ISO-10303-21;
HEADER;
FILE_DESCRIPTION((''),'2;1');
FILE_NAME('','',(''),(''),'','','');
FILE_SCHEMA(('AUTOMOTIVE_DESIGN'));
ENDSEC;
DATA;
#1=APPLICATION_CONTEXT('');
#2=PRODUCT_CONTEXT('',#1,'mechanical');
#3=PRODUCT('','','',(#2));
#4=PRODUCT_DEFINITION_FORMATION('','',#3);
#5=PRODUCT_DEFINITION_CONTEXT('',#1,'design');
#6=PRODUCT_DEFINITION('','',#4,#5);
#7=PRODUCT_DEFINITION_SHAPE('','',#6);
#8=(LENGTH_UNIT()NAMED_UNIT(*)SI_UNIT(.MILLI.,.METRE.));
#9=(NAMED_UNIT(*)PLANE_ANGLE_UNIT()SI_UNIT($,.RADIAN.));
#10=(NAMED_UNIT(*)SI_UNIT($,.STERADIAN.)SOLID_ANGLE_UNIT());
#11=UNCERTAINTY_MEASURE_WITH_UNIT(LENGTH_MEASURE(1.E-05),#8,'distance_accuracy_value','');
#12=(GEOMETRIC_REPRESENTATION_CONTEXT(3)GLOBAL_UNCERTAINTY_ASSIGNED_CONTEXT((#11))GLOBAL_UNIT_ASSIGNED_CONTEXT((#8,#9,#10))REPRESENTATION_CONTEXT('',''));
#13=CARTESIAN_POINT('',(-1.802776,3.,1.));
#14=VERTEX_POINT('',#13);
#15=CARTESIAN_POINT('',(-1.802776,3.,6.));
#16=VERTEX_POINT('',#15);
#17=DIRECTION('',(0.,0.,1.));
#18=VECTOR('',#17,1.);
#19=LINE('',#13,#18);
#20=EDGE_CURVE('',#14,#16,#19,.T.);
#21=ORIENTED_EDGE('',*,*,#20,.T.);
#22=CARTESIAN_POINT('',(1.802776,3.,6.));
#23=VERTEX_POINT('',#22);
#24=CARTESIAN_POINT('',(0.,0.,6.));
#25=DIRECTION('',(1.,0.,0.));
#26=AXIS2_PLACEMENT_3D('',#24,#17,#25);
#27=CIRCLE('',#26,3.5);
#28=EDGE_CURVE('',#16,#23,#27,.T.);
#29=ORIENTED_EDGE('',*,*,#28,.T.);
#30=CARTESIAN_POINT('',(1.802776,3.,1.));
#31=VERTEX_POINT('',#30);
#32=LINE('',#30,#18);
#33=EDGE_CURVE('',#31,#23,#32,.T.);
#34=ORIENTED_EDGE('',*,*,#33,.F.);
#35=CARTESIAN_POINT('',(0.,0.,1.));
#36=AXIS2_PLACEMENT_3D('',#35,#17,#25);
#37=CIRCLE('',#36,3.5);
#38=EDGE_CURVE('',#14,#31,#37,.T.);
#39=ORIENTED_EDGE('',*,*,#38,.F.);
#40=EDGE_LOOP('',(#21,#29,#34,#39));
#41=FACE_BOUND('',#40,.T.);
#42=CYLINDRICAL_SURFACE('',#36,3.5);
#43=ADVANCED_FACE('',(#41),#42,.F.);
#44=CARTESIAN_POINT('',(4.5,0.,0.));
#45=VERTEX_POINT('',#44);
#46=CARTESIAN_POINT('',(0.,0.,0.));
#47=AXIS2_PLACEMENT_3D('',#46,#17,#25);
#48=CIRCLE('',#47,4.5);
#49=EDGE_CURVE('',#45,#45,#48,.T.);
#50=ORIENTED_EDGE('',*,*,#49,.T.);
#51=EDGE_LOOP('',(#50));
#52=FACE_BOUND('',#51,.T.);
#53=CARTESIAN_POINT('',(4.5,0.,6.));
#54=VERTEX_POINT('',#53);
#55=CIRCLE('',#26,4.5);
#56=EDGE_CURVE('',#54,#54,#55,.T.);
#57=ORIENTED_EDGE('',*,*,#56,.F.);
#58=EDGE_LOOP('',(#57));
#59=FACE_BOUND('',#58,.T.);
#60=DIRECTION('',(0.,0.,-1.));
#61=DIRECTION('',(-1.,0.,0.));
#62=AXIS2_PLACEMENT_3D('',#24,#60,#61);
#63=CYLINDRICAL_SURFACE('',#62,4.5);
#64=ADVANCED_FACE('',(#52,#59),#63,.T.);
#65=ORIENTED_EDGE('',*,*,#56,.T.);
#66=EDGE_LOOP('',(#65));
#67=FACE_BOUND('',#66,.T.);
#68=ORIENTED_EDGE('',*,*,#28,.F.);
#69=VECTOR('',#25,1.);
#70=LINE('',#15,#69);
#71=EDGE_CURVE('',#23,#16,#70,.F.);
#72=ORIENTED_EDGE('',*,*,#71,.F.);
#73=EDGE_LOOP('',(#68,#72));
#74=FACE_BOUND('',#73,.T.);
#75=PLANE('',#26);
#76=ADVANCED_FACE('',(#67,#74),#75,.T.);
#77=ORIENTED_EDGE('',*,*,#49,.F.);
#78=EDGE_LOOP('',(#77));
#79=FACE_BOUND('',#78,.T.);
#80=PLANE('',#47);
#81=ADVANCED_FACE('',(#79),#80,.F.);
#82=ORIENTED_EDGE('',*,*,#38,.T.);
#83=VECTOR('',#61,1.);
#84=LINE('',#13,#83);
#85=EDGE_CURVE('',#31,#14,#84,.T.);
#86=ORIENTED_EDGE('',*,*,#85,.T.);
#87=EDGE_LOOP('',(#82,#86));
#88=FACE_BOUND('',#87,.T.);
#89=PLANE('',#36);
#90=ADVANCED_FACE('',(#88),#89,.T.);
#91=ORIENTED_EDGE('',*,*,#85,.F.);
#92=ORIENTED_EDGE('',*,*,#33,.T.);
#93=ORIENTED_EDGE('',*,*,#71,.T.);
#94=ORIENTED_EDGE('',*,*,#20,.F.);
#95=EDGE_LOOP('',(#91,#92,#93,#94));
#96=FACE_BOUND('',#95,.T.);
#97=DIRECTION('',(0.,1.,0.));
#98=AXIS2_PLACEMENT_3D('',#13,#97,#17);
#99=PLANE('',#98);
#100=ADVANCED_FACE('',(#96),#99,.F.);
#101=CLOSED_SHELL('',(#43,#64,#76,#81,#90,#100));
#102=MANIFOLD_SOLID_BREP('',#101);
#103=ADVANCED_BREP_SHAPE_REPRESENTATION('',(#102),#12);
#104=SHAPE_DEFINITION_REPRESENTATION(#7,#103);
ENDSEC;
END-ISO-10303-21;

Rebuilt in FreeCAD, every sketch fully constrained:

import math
import FreeCAD as App
import Part
import Sketcher

V = App.Vector
Q = App.Units.Quantity

doc = App.newDocument("Part")
body = doc.addObject("PartDesign::Body", "Body")

# Sketch on XY plane
sketch1 = body.newObject("Sketcher::SketchObject", "Sketch")
sketch1.AttachmentSupport = (doc.getObject("XY_Plane"), [""])
sketch1.MapMode = "FlatFace"
sketch1.addGeometry(Part.Circle(V(0, 0, 0), V(0, 0, 1), 4.5), False)
sketch1.addConstraint([
    Sketcher.Constraint("Coincident", 0, 3, -1, 1),
    Sketcher.Constraint("Diameter", 0, Q("9 mm")),
])
pad1 = body.newObject("PartDesign::Pad", "Pad")
pad1.Profile = sketch1
pad1.Length = 6

# Sketch on XY plane
sketch2 = body.newObject("Sketcher::SketchObject", "Sketch001")
sketch2.AttachmentSupport = (doc.getObject("XY_Plane"), [""])
sketch2.MapMode = "FlatFace"
sketch2.AttachmentOffset = App.Placement(V(0, 0, 6), App.Rotation())
sketch2.addGeometry([
    Part.LineSegment(V(1.8, 3, 0), V(-1.8, 3, 0)),
    Part.ArcOfCircle(Part.Circle(V(0, 0, 0), V(0, 0, 1), 3.5), math.radians(121), math.radians(419)),
], False)
sketch2.addConstraint([
    Sketcher.Constraint("Coincident", 0, 1, 1, 2),
    Sketcher.Constraint("Coincident", 1, 1, 0, 2),
    Sketcher.Constraint("Horizontal", 0),
    Sketcher.Constraint("Coincident", 1, 3, -1, 1),
    Sketcher.Constraint("Radius", 1, Q("3.5 mm")),
    Sketcher.Constraint("DistanceY", -1, 1, 0, 1, Q("3 mm")),
])
pocket1 = body.newObject("PartDesign::Pocket", "Pocket")
pocket1.Profile = sketch2
pocket1.Type = "TwoLengths"
pocket1.Length = 9.746428
pocket1.Length2 = 5
pocket1.Reversed = True

doc.recompute()
